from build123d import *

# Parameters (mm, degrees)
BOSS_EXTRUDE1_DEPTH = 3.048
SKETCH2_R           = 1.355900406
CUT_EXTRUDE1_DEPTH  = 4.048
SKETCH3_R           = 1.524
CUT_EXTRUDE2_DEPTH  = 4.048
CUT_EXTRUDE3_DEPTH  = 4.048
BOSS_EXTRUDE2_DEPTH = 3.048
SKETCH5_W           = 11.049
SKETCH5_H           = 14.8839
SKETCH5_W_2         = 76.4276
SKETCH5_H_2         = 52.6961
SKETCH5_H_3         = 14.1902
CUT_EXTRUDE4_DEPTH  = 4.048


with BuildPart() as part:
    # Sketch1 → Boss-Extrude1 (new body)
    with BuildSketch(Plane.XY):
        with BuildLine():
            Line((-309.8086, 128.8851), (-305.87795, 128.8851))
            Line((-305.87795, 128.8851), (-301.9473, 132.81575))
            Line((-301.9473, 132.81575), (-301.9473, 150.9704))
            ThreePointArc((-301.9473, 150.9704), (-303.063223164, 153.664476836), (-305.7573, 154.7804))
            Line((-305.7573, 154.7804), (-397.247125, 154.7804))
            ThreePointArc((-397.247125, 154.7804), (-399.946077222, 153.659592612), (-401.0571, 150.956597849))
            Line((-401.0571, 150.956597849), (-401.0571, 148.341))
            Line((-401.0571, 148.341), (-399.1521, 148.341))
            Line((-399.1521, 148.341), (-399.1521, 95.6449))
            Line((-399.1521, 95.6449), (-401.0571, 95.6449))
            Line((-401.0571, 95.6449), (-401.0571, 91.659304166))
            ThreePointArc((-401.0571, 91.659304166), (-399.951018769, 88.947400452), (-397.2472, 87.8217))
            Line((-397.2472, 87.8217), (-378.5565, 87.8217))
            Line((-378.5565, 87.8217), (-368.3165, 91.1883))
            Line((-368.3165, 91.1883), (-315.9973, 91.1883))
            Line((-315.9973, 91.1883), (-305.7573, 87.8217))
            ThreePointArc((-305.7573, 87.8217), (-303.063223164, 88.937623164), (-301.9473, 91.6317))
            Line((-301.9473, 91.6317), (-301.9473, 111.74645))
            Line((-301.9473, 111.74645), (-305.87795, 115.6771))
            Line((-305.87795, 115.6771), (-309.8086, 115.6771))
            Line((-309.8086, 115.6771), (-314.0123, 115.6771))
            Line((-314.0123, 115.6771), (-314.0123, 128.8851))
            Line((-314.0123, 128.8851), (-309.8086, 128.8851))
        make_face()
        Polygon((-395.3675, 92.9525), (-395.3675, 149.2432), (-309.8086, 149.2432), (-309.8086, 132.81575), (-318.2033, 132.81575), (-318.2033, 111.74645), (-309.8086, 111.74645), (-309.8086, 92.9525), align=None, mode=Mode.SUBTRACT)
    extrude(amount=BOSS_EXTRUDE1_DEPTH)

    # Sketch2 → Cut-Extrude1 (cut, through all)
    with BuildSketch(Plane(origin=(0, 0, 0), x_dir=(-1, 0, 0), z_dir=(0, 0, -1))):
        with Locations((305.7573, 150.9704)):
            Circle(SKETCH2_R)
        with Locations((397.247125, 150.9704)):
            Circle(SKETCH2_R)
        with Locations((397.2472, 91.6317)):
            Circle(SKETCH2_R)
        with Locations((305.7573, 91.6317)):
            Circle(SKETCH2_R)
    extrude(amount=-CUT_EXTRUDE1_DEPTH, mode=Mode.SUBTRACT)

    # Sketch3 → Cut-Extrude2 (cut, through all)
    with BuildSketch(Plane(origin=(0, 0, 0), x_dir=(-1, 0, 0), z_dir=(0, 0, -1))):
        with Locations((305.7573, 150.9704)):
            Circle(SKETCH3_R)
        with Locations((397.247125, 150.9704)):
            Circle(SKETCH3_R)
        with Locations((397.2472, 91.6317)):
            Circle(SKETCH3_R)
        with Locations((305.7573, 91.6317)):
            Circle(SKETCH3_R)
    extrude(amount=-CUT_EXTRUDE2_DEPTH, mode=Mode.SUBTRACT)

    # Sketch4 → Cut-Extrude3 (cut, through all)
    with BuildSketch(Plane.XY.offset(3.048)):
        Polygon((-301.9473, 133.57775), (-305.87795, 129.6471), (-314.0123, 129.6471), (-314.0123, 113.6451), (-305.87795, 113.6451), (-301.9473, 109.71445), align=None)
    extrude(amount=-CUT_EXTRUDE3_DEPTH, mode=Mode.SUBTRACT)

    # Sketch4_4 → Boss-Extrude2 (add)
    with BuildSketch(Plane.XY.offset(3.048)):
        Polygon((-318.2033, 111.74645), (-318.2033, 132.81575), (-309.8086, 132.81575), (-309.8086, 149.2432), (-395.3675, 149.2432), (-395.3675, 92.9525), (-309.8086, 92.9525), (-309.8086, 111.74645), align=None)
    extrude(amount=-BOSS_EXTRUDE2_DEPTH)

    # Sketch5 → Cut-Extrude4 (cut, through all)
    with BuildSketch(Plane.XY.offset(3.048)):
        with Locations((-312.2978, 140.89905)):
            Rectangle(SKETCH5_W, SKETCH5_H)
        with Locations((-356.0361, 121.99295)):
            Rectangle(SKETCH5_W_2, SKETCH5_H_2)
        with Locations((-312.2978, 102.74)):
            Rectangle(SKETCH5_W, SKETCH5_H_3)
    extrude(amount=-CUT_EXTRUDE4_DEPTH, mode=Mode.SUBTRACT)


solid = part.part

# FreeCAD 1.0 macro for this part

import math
import FreeCAD as App
import Part
import Sketcher
Q = App.Units.Quantity

doc = App.newDocument("Part")
params = doc.addObject("Spreadsheet::Sheet", "Params")
for row, (alias, value) in enumerate([
    ("sketch1_radius", "0.15 in"),
    ("sketch1_height", "0.52 in"),
    ("sketch1_width", "0.075 in"),
    ("pad1_length", "0.12 in"),
    ("sketch3_diameter", "0.12 in"),
    ("sketch4_height", "0.63 in"),
    ("pad2_length", "0.12 in"),
    ("sketch6_height", "0.93 in"),
    ("sketch6_width", "0.435 in"),
], start=1):
    params.set(f"A{row}", alias)
    params.set(f"B{row}", "=" + value)
    params.setAlias(f"B{row}", alias)

body = doc.addObject("PartDesign::Body", "Body")

sketch1 = doc.addObject("Sketcher::SketchObject", "Sketch")
body.addObject(sketch1)
sketch1.AttachmentSupport = (doc.XY_Plane, [""])
sketch1.MapMode = "FlatFace"
sketch1.addGeometry([
    Part.LineSegment(App.Vector(-305.87795, 128.8851, 0), App.Vector(-301.9473, 132.81575, 0)),
    Part.LineSegment(App.Vector(-301.9473, 132.81575, 0), App.Vector(-301.9473, 150.9704, 0)),
    Part.ArcOfCircle(Part.Circle(App.Vector(-305.7573, 150.9704, 0), App.Vector(0, 0, 1), 3.81), math.radians(0), math.radians(90)),
    Part.LineSegment(App.Vector(-305.7573, 154.7804, 0), App.Vector(-397.247125, 154.7804, 0)),
    Part.ArcOfCircle(Part.Circle(App.Vector(-397.247125, 150.9704, 0), App.Vector(0, 0, 1), 3.81), math.radians(90), math.radians(180.207561)),
    Part.LineSegment(App.Vector(-401.0571, 150.956598, 0), App.Vector(-401.0571, 148.341, 0)),
    Part.LineSegment(App.Vector(-401.0571, 148.341, 0), App.Vector(-399.1521, 148.341, 0)),
    Part.LineSegment(App.Vector(-399.1521, 148.341, 0), App.Vector(-399.1521, 95.6449, 0)),
    Part.LineSegment(App.Vector(-399.1521, 95.6449, 0), App.Vector(-401.0571, 95.6449, 0)),
    Part.LineSegment(App.Vector(-401.0571, 95.6449, 0), App.Vector(-401.0571, 91.659304, 0)),
    Part.ArcOfCircle(Part.Circle(App.Vector(-397.2472, 91.6317, 0), App.Vector(0, 0, 1), 3.81), math.radians(179.584878), math.radians(270)),
    Part.LineSegment(App.Vector(-397.2472, 87.8217, 0), App.Vector(-378.5565, 87.8217, 0)),
    Part.LineSegment(App.Vector(-378.5565, 87.8217, 0), App.Vector(-368.3165, 91.1883, 0)),
    Part.LineSegment(App.Vector(-368.3165, 91.1883, 0), App.Vector(-315.9973, 91.1883, 0)),
    Part.LineSegment(App.Vector(-315.9973, 91.1883, 0), App.Vector(-305.7573, 87.8217, 0)),
    Part.ArcOfCircle(Part.Circle(App.Vector(-305.7573, 91.6317, 0), App.Vector(0, 0, 1), 3.81), math.radians(-90), math.radians(0)),
    Part.LineSegment(App.Vector(-301.9473, 91.6317, 0), App.Vector(-301.9473, 111.74645, 0)),
    Part.LineSegment(App.Vector(-301.9473, 111.74645, 0), App.Vector(-305.87795, 115.6771, 0)),
    Part.LineSegment(App.Vector(-305.87795, 115.6771, 0), App.Vector(-314.0123, 115.6771, 0)),
    Part.LineSegment(App.Vector(-314.0123, 115.6771, 0), App.Vector(-314.0123, 128.8851, 0)),
    Part.LineSegment(App.Vector(-314.0123, 128.8851, 0), App.Vector(-305.87795, 128.8851, 0)),
    Part.LineSegment(App.Vector(-309.8086, 92.9525, 0), App.Vector(-395.3675, 92.9525, 0)),
    Part.LineSegment(App.Vector(-395.3675, 92.9525, 0), App.Vector(-395.3675, 149.2432, 0)),
    Part.LineSegment(App.Vector(-395.3675, 149.2432, 0), App.Vector(-309.8086, 149.2432, 0)),
    Part.LineSegment(App.Vector(-309.8086, 149.2432, 0), App.Vector(-309.8086, 132.81575, 0)),
    Part.LineSegment(App.Vector(-309.8086, 132.81575, 0), App.Vector(-318.2033, 132.81575, 0)),
    Part.LineSegment(App.Vector(-318.2033, 132.81575, 0), App.Vector(-318.2033, 111.74645, 0)),
    Part.LineSegment(App.Vector(-318.2033, 111.74645, 0), App.Vector(-309.8086, 111.74645, 0)),
    Part.LineSegment(App.Vector(-309.8086, 111.74645, 0), App.Vector(-309.8086, 92.9525, 0)),
], False)
sketch1.addConstraint([
    Sketcher.Constraint("Coincident", 0, 2, 1, 1),
    Sketcher.Constraint("Tangent", 1, 2, 2, 1),
    Sketcher.Constraint("Tangent", 2, 2, 3, 1),
    Sketcher.Constraint("Tangent", 3, 2, 4, 1),
    Sketcher.Constraint("Coincident", 4, 2, 5, 1),
    Sketcher.Constraint("Coincident", 5, 2, 6, 1),
    Sketcher.Constraint("Coincident", 6, 2, 7, 1),
    Sketcher.Constraint("Coincident", 7, 2, 8, 1),
    Sketcher.Constraint("Coincident", 8, 2, 9, 1),
    Sketcher.Constraint("Coincident", 9, 2, 10, 1),
    Sketcher.Constraint("Tangent", 10, 2, 11, 1),
    Sketcher.Constraint("Coincident", 11, 2, 12, 1),
    Sketcher.Constraint("Coincident", 12, 2, 13, 1),
    Sketcher.Constraint("Coincident", 13, 2, 14, 1),
    Sketcher.Constraint("Coincident", 14, 2, 15, 1),
    Sketcher.Constraint("Tangent", 15, 2, 16, 1),
    Sketcher.Constraint("Coincident", 16, 2, 17, 1),
    Sketcher.Constraint("Coincident", 17, 2, 18, 1),
    Sketcher.Constraint("Coincident", 18, 2, 19, 1),
    Sketcher.Constraint("Coincident", 19, 2, 20, 1),
    Sketcher.Constraint("Coincident", 20, 2, 0, 1),
    Sketcher.Constraint("Coincident", 21, 2, 22, 1),
    Sketcher.Constraint("Coincident", 22, 2, 23, 1),
    Sketcher.Constraint("Coincident", 23, 2, 24, 1),
    Sketcher.Constraint("Coincident", 24, 2, 25, 1),
    Sketcher.Constraint("Coincident", 25, 2, 26, 1),
    Sketcher.Constraint("Coincident", 26, 2, 27, 1),
    Sketcher.Constraint("Coincident", 27, 2, 28, 1),
    Sketcher.Constraint("Coincident", 28, 2, 21, 1),
    Sketcher.Constraint("Vertical", 1),
    Sketcher.Constraint("Horizontal", 3),
    Sketcher.Constraint("Vertical", 5),
    Sketcher.Constraint("Horizontal", 6),
    Sketcher.Constraint("Vertical", 7),
    Sketcher.Constraint("Horizontal", 8),
    Sketcher.Constraint("Vertical", 9),
    Sketcher.Constraint("Horizontal", 11),
    Sketcher.Constraint("Horizontal", 13),
    Sketcher.Constraint("Vertical", 16),
    Sketcher.Constraint("Horizontal", 18),
    Sketcher.Constraint("Vertical", 19),
    Sketcher.Constraint("Horizontal", 20),
    Sketcher.Constraint("Horizontal", 21),
    Sketcher.Constraint("Vertical", 22),
    Sketcher.Constraint("Horizontal", 23),
    Sketcher.Constraint("Vertical", 24),
    Sketcher.Constraint("Horizontal", 25),
    Sketcher.Constraint("Vertical", 26),
    Sketcher.Constraint("Horizontal", 27),
    Sketcher.Constraint("Vertical", 28),
    Sketcher.Constraint("Equal", 2, 4),
    Sketcher.Constraint("Equal", 4, 10),
    Sketcher.Constraint("Equal", 10, 15),
    Sketcher.Constraint("Perpendicular", 0, 17),
    Sketcher.Constraint("Horizontal", 10, 3, 15, 3),
    Sketcher.Constraint("Horizontal", 0, 2, 24, 2),
    Sketcher.Constraint("Horizontal", 16, 2, 26, 2),
    Sketcher.Constraint("Vertical", 2, 3, 15, 3),
    Sketcher.Constraint("Vertical", 5, 2, 8, 2),
    Sketcher.Constraint("Vertical", 2, 2, 14, 2),
    Sketcher.Constraint("Vertical", 17, 2, 20, 2),
    Sketcher.Constraint("Vertical", 24, 2, 27, 2),
    Sketcher.Constraint("Equal", 12, 14),
    Sketcher.Constraint("Equal", 0, 17),
    Sketcher.Constraint("Radius", 2, Q("0.15 in")),
    Sketcher.Constraint("DistanceY", 19, 1, 19, 2, Q("0.52 in")),
    Sketcher.Constraint("DistanceX", 6, 1, 6, 2, Q("0.075 in")),
    Sketcher.Constraint("DistanceX", 25, 2, 0, 2, Q("0.64 in")),
    Sketcher.Constraint("DistanceX", 25, 2, 25, 1, Q("0.3305 in")),
    Sketcher.Constraint("DistanceY", 26, 2, 26, 1, Q("0.8295 in")),
    Sketcher.Constraint("DistanceY", 10, 3, 7, 2, Q("0.158 in")),
    Sketcher.Constraint("DistanceX", 7, 2, 12, 2, Q("1.214 in")),
    Sketcher.Constraint("DistanceX", 18, 2, 16, 2, Q("0.475 in")),
    Sketcher.Constraint("DistanceY", 10, 3, 21, 2, Q("0.052 in")),
    Sketcher.Constraint("DistanceX", 7, 2, 21, 2, Q("0.149 in")),
    Sketcher.Constraint("DistanceY", 22, 2, 4, 3, Q("0.068 in")),
    Sketcher.Constraint("DistanceX", 11, 1, 11, 2, 18.6907),
    Sketcher.Constraint("DistanceX", 13, 1, 13, 2, 52.3192),
    Sketcher.Constraint("DistanceX", 21, 2, 21, 1, 85.5589),
    Sketcher.Constraint("DistanceY", 7, 2, 7, 1, 52.6961),
    Sketcher.Constraint("DistanceY", 22, 1, 22, 2, 56.2907),
    Sketcher.Constraint("DistanceY", 19, 2, 2, 3, Q("0.8695 in")),
    Sketcher.Constraint("DistanceX", 2, 3, -1, 1, 305.7573),
    Sketcher.Constraint("DistanceY", -1, 1, 2, 3, 150.9704),
    Sketcher.Constraint("DistanceY", -1, 1, 12, 2, 91.1883),
    Sketcher.Constraint("DistanceX", 3, 2, 3, 1, 91.489825),
])
sketch1.setExpression("Constraints[64]", "Params.sketch1_radius")
sketch1.setExpression("Constraints[65]", "Params.sketch1_height")
sketch1.setExpression("Constraints[66]", "Params.sketch1_width")
pad1 = doc.addObject("PartDesign::Pad", "Pad")
body.addObject(pad1)
pad1.Profile = sketch1
pad1.setExpression("Length", "Params.pad1_length")

sketch2 = doc.addObject("Sketcher::SketchObject", "Sketch001")
body.addObject(sketch2)
sketch2.AttachmentSupport = (doc.XY_Plane, [""])
sketch2.MapMode = "FlatFace"
sketch2.addGeometry([
    Part.Circle(App.Vector(-305.8, 151, 0), App.Vector(0, 0, 1), 1.4),
    Part.Circle(App.Vector(-397.2, 151, 0), App.Vector(0, 0, 1), 1.4),
    Part.Circle(App.Vector(-397.2, 91.6, 0), App.Vector(0, 0, 1), 1.4),
    Part.Circle(App.Vector(-305.8, 91.6, 0), App.Vector(0, 0, 1), 1.4),
], False)
sketch2.addConstraint([
    Sketcher.Constraint("Equal", 0, 1),
    Sketcher.Constraint("Equal", 1, 2),
    Sketcher.Constraint("Equal", 2, 3),
    Sketcher.Constraint("Horizontal", 0, 3, 1, 3),
    Sketcher.Constraint("Horizontal", 2, 3, 3, 3),
    Sketcher.Constraint("Vertical", 0, 3, 3, 3),
    Sketcher.Constraint("Diameter", 0, 2.711801),
    Sketcher.Constraint("DistanceX", 0, 3, -1, 1, 305.7573),
    Sketcher.Constraint("DistanceY", -1, 1, 0, 3, 150.9704),
    Sketcher.Constraint("DistanceX", 2, 3, -1, 1, 397.2472),
    Sketcher.Constraint("DistanceY", -1, 1, 2, 3, 91.6317),
    Sketcher.Constraint("DistanceX", 1, 3, -1, 1, 397.247125),
])
pocket1 = doc.addObject("PartDesign::Pocket", "Pocket")
body.addObject(pocket1)
pocket1.Profile = sketch2
pocket1.Type = "ThroughAll"
pocket1.Reversed = True

sketch3 = doc.addObject("Sketcher::SketchObject", "Sketch002")
body.addObject(sketch3)
sketch3.AttachmentSupport = (doc.XY_Plane, [""])
sketch3.MapMode = "FlatFace"
sketch3.addGeometry([
    Part.Circle(App.Vector(-305.8, 151, 0), App.Vector(0, 0, 1), 1.5),
    Part.Circle(App.Vector(-397.2, 151, 0), App.Vector(0, 0, 1), 1.5),
    Part.Circle(App.Vector(-397.2, 91.6, 0), App.Vector(0, 0, 1), 1.5),
    Part.Circle(App.Vector(-305.8, 91.6, 0), App.Vector(0, 0, 1), 1.5),
], False)
sketch3.addConstraint([
    Sketcher.Constraint("Equal", 0, 1),
    Sketcher.Constraint("Equal", 1, 2),
    Sketcher.Constraint("Equal", 2, 3),
    Sketcher.Constraint("Horizontal", 0, 3, 1, 3),
    Sketcher.Constraint("Horizontal", 2, 3, 3, 3),
    Sketcher.Constraint("Vertical", 0, 3, 3, 3),
    Sketcher.Constraint("Diameter", 0, Q("0.12 in")),
    Sketcher.Constraint("DistanceX", 0, 3, -1, 1, 305.7573),
    Sketcher.Constraint("DistanceY", -1, 1, 0, 3, 150.9704),
    Sketcher.Constraint("DistanceX", 2, 3, -1, 1, 397.2472),
    Sketcher.Constraint("DistanceY", -1, 1, 2, 3, 91.6317),
    Sketcher.Constraint("DistanceX", 1, 3, -1, 1, 397.247125),
])
sketch3.setExpression("Constraints[6]", "Params.sketch3_diameter")
pocket2 = doc.addObject("PartDesign::Pocket", "Pocket001")
body.addObject(pocket2)
pocket2.Profile = sketch3
pocket2.Type = "ThroughAll"
pocket2.Reversed = True

sketch4 = doc.addObject("Sketcher::SketchObject", "Sketch003")
body.addObject(sketch4)
sketch4.AttachmentSupport = (doc.XY_Plane, [""])
sketch4.MapMode = "FlatFace"
sketch4.AttachmentOffset = App.Placement(App.Vector(0, 0, 0.12 * 25.4), App.Rotation())
sketch4.addGeometry([
    Part.LineSegment(App.Vector(-302, 134, 0), App.Vector(-306, 130, 0)),
    Part.LineSegment(App.Vector(-306, 130, 0), App.Vector(-314, 130, 0)),
    Part.LineSegment(App.Vector(-314, 130, 0), App.Vector(-314, 114, 0)),
    Part.LineSegment(App.Vector(-314, 114, 0), App.Vector(-306, 114, 0)),
    Part.LineSegment(App.Vector(-306, 114, 0), App.Vector(-302, 110, 0)),
    Part.LineSegment(App.Vector(-302, 110, 0), App.Vector(-302, 134, 0)),
], False)
sketch4.addConstraint([
    Sketcher.Constraint("Coincident", 0, 2, 1, 1),
    Sketcher.Constraint("Coincident", 1, 2, 2, 1),
    Sketcher.Constraint("Coincident", 2, 2, 3, 1),
    Sketcher.Constraint("Coincident", 3, 2, 4, 1),
    Sketcher.Constraint("Coincident", 4, 2, 5, 1),
    Sketcher.Constraint("Coincident", 5, 2, 0, 1),
    Sketcher.Constraint("Horizontal", 1),
    Sketcher.Constraint("Vertical", 2),
    Sketcher.Constraint("Horizontal", 3),
    Sketcher.Constraint("Vertical", 5),
    Sketcher.Constraint("Perpendicular", 0, 4),
    Sketcher.Constraint("Vertical", 0, 2, 3, 2),
    Sketcher.Constraint("Equal", 0, 4),
    Sketcher.Constraint("DistanceY", 2, 2, 2, 1, Q("0.63 in")),
    Sketcher.Constraint("DistanceY", 5, 1, 5, 2, Q("0.9395 in")),
    Sketcher.Constraint("DistanceX", 2, 2, 4, 2, Q("0.475 in")),
    Sketcher.Constraint("DistanceY", -1, 1, 0, 2, 129.6471),
    Sketcher.Constraint("DistanceX", 1, 2, -1, 1, 314.0123),
])
sketch4.setExpression("Constraints[13]", "Params.sketch4_height")
pocket3 = doc.addObject("PartDesign::Pocket", "Pocket002")
body.addObject(pocket3)
pocket3.Profile = sketch4
pocket3.Type = "ThroughAll"

sketch5 = doc.addObject("Sketcher::SketchObject", "Sketch004")
body.addObject(sketch5)
sketch5.AttachmentSupport = (doc.XY_Plane, [""])
sketch5.MapMode = "FlatFace"
sketch5.AttachmentOffset = App.Placement(App.Vector(0, 0, 0.12 * 25.4), App.Rotation())
sketch5.addGeometry([
    Part.LineSegment(App.Vector(-318, 112, 0), App.Vector(-318, 133, 0)),
    Part.LineSegment(App.Vector(-318, 133, 0), App.Vector(-310, 133, 0)),
    Part.LineSegment(App.Vector(-310, 133, 0), App.Vector(-310, 149, 0)),
    Part.LineSegment(App.Vector(-310, 149, 0), App.Vector(-395, 149, 0)),
    Part.LineSegment(App.Vector(-395, 149, 0), App.Vector(-395, 93, 0)),
    Part.LineSegment(App.Vector(-395, 93, 0), App.Vector(-310, 93, 0)),
    Part.LineSegment(App.Vector(-310, 93, 0), App.Vector(-310, 112, 0)),
    Part.LineSegment(App.Vector(-310, 112, 0), App.Vector(-318, 112, 0)),
], False)
sketch5.addConstraint([
    Sketcher.Constraint("Coincident", 0, 2, 1, 1),
    Sketcher.Constraint("Coincident", 1, 2, 2, 1),
    Sketcher.Constraint("Coincident", 2, 2, 3, 1),
    Sketcher.Constraint("Coincident", 3, 2, 4, 1),
    Sketcher.Constraint("Coincident", 4, 2, 5, 1),
    Sketcher.Constraint("Coincident", 5, 2, 6, 1),
    Sketcher.Constraint("Coincident", 6, 2, 7, 1),
    Sketcher.Constraint("Coincident", 7, 2, 0, 1),
    Sketcher.Constraint("Vertical", 0),
    Sketcher.Constraint("Horizontal", 1),
    Sketcher.Constraint("Vertical", 2),
    Sketcher.Constraint("Horizontal", 3),
    Sketcher.Constraint("Vertical", 4),
    Sketcher.Constraint("Horizontal", 5),
    Sketcher.Constraint("Vertical", 6),
    Sketcher.Constraint("Horizontal", 7),
    Sketcher.Constraint("Vertical", 2, 2, 5, 2),
    Sketcher.Constraint("DistanceX", 1, 1, 1, 2, Q("0.3305 in")),
    Sketcher.Constraint("DistanceY", 0, 1, 0, 2, Q("0.8295 in")),
    Sketcher.Constraint("DistanceX", 3, 2, 3, 1, 85.5589),
    Sketcher.Constraint("DistanceY", 4, 2, 4, 1, 56.2907),
    Sketcher.Constraint("DistanceY", 2, 1, 2, 2, 16.42745),
    Sketcher.Constraint("DistanceX", 0, 2, -1, 1, 318.2033),
    Sketcher.Constraint("DistanceY", -1, 1, 2, 2, 149.2432),
])
pad2 = doc.addObject("PartDesign::Pad", "Pad001")
body.addObject(pad2)
pad2.Profile = sketch5
pad2.setExpression("Length", "Params.pad2_length")
pad2.Reversed = True

sketch6 = doc.addObject("Sketcher::SketchObject", "Sketch005")
body.addObject(sketch6)
sketch6.AttachmentSupport = (doc.XY_Plane, [""])
sketch6.MapMode = "FlatFace"
sketch6.AttachmentOffset = App.Placement(App.Vector(0, 0, 0.12 * 25.4), App.Rotation())
sketch6.addGeometry([
    Part.LineSegment(App.Vector(-318, 133, 0), App.Vector(-307, 133, 0)),
    Part.LineSegment(App.Vector(-307, 133, 0), App.Vector(-307, 148, 0)),
    Part.LineSegment(App.Vector(-307, 148, 0), App.Vector(-394, 148, 0)),
    Part.LineSegment(App.Vector(-394, 148, 0), App.Vector(-394, 96, 0)),
    Part.LineSegment(App.Vector(-394, 96, 0), App.Vector(-307, 96, 0)),
    Part.LineSegment(App.Vector(-307, 96, 0), App.Vector(-307, 110, 0)),
    Part.LineSegment(App.Vector(-307, 110, 0), App.Vector(-318, 110, 0)),
    Part.LineSegment(App.Vector(-318, 110, 0), App.Vector(-318, 133, 0)),
], False)
sketch6.addConstraint([
    Sketcher.Constraint("Coincident", 0, 2, 1, 1),
    Sketcher.Constraint("Coincident", 1, 2, 2, 1),
    Sketcher.Constraint("Coincident", 2, 2, 3, 1),
    Sketcher.Constraint("Coincident", 3, 2, 4, 1),
    Sketcher.Constraint("Coincident", 4, 2, 5, 1),
    Sketcher.Constraint("Coincident", 5, 2, 6, 1),
    Sketcher.Constraint("Coincident", 6, 2, 7, 1),
    Sketcher.Constraint("Coincident", 7, 2, 0, 1),
    Sketcher.Constraint("Horizontal", 0),
    Sketcher.Constraint("Vertical", 1),
    Sketcher.Constraint("Horizontal", 2),
    Sketcher.Constraint("Vertical", 3),
    Sketcher.Constraint("Horizontal", 4),
    Sketcher.Constraint("Vertical", 5),
    Sketcher.Constraint("Horizontal", 6),
    Sketcher.Constraint("Vertical", 7),
    Sketcher.Constraint("Vertical", 1, 2, 4, 2),
    Sketcher.Constraint("DistanceY", 7, 1, 7, 2, Q("0.93 in")),
    Sketcher.Constraint("DistanceX", 0, 1, 0, 2, Q("0.435 in")),
    Sketcher.Constraint("DistanceX", 2, 2, 2, 1, 87.4766),
    Sketcher.Constraint("DistanceY", 1, 1, 1, 2, 14.8839),
    Sketcher.Constraint("DistanceY", 3, 2, 3, 1, 52.6961),
    Sketcher.Constraint("DistanceX", 0, 2, -1, 1, 306.7733),
    Sketcher.Constraint("DistanceY", -1, 1, 0, 2, 133.4571),
])
sketch6.setExpression("Constraints[17]", "Params.sketch6_height")
sketch6.setExpression("Constraints[18]", "Params.sketch6_width")
pocket4 = doc.addObject("PartDesign::Pocket", "Pocket003")
body.addObject(pocket4)
pocket4.Profile = sketch6
pocket4.Type = "ThroughAll"

doc.recompute()
